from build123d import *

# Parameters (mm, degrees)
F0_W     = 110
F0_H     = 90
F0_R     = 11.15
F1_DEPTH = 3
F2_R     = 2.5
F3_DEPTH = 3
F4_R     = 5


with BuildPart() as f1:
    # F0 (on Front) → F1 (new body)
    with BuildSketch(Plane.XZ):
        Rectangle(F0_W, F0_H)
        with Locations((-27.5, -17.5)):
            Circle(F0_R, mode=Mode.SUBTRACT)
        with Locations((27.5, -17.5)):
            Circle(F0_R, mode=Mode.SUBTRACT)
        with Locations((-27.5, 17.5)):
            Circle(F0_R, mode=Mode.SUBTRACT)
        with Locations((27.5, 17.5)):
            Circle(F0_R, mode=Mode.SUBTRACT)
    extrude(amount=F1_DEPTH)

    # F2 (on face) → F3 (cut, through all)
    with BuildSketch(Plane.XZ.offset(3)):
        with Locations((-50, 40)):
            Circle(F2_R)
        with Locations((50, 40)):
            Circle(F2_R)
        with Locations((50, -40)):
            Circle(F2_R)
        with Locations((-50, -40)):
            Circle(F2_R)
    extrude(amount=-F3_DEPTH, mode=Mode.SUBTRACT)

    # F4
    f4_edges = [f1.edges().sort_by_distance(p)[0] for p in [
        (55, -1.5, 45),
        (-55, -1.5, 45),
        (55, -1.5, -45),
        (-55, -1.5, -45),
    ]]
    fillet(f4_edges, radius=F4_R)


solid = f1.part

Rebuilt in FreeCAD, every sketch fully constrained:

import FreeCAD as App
import Part
import Sketcher
from FreeCAD import Vector


def edges_at(feature, points):
    """Names of the edges that pass closest to the given points."""
    edges = feature.Shape.Edges
    near = lambda p: min(range(len(edges)), key=lambda i: edges[i].distToShape(Part.Vertex(*p))[0])
    return sorted({f"Edge{near(p) + 1}" for p in points})


def add_polygon(sketch, points):
    """Adds a closed chain of lines whose ends are joined by coincident constraints."""
    first, n = sketch.GeometryCount, len(points)
    for a, b in zip(points, points[1:] + points[:1]):
        sketch.addGeometry(Part.LineSegment(App.Vector(*a, 0), App.Vector(*b, 0)), False)
    for i in range(n):
        sketch.addConstraint(Sketcher.Constraint("Coincident", first + i, 2, first + (i + 1) % n, 1))

doc = App.newDocument("Part")
body = doc.addObject("PartDesign::Body", "Body")

# Sketch on XZ plane
sketch1 = body.newObject("Sketcher::SketchObject", "Sketch")
sketch1.AttachmentSupport = (doc.getObject("XZ_Plane"), [""])
sketch1.MapMode = "FlatFace"
add_polygon(sketch1, [(-55, 45), (-55, -45), (55, -45), (55, 45)])  # lines 0-3
sketch1.addGeometry(Part.Circle(Vector(-27.5, -17.5, 0), Vector(0, 0, 1), 11.15), False)  # 4
sketch1.addGeometry(Part.Circle(Vector(27.5, -17.5, 0), Vector(0, 0, 1), 11.15), False)  # 5
sketch1.addGeometry(Part.Circle(Vector(-27.5, 17.5, 0), Vector(0, 0, 1), 11.15), False)  # 6
sketch1.addGeometry(Part.Circle(Vector(27.5, 17.5, 0), Vector(0, 0, 1), 11.15), False)  # 7
sketch1.addConstraint([
    Sketcher.Constraint("Vertical", 0),
    Sketcher.Constraint("Horizontal", 1),
    Sketcher.Constraint("Vertical", 2),
    Sketcher.Constraint("Horizontal", 3),
    Sketcher.Constraint("Equal", 4, 5),
    Sketcher.Constraint("Equal", 5, 6),
    Sketcher.Constraint("Equal", 6, 7),
    Sketcher.Constraint("Symmetric", 5, 3, 6, 3, -1, 1),
    Sketcher.Constraint("Symmetric", 4, 3, 7, 3, -1, 1),
    Sketcher.Constraint("Symmetric", 0, 2, 2, 2, -1, 1),
    Sketcher.Constraint("Symmetric", 4, 3, 5, 3, -2),
    Sketcher.Constraint("Diameter", 4, 22.3),
    Sketcher.Constraint("DistanceX", 1, 1, 1, 2, 110.0),
    Sketcher.Constraint("DistanceY", 0, 2, 0, 1, 90.0),
    Sketcher.Constraint("DistanceX", 4, 3, 5, 3, 55.0),
    Sketcher.Constraint("DistanceY", 4, 3, 6, 3, 35.0),
])
pad1 = body.newObject("PartDesign::Pad", "Pad")
pad1.Profile = sketch1
pad1.Length = 3

# Sketch on XZ plane
sketch2 = body.newObject("Sketcher::SketchObject", "Sketch001")
sketch2.AttachmentSupport = (doc.getObject("XZ_Plane"), [""])
sketch2.MapMode = "FlatFace"
sketch2.AttachmentOffset = App.Placement(Vector(0, 0, 3), App.Rotation())
sketch2.addGeometry([
    Part.Circle(Vector(-50, 40, 0), Vector(0, 0, 1), 2.5),
    Part.Circle(Vector(50, 40, 0), Vector(0, 0, 1), 2.5),
    Part.Circle(Vector(50, -40, 0), Vector(0, 0, 1), 2.5),
    Part.Circle(Vector(-50, -40, 0), Vector(0, 0, 1), 2.5),
], False)
sketch2.addConstraint([
    Sketcher.Constraint("Equal", 0, 1),
    Sketcher.Constraint("Equal", 1, 2),
    Sketcher.Constraint("Equal", 2, 3),
    Sketcher.Constraint("Symmetric", 0, 3, 2, 3, -1, 1),
    Sketcher.Constraint("Symmetric", 1, 3, 3, 3, -1, 1),
    Sketcher.Constraint("Symmetric", 0, 3, 1, 3, -2),
    Sketcher.Constraint("Diameter", 0, 5.0),
    Sketcher.Constraint("DistanceX", 0, 3, -1, 1, 50.0),
    Sketcher.Constraint("DistanceY", -1, 1, 0, 3, 40.0),
])
pocket1 = body.newObject("PartDesign::Pocket", "Pocket")
pocket1.Profile = sketch2
pocket1.Type = "ThroughAll"
doc.recompute()

fillet = body.newObject("PartDesign::Fillet", "Fillet")
fillet.Base = (pocket1, edges_at(pocket1, [
    (55, -1.5, 45),
    (-55, -1.5, 45),
    (55, -1.5, -45),
    (-55, -1.5, -45),
]))
fillet.Radius = 5

doc.recompute()
